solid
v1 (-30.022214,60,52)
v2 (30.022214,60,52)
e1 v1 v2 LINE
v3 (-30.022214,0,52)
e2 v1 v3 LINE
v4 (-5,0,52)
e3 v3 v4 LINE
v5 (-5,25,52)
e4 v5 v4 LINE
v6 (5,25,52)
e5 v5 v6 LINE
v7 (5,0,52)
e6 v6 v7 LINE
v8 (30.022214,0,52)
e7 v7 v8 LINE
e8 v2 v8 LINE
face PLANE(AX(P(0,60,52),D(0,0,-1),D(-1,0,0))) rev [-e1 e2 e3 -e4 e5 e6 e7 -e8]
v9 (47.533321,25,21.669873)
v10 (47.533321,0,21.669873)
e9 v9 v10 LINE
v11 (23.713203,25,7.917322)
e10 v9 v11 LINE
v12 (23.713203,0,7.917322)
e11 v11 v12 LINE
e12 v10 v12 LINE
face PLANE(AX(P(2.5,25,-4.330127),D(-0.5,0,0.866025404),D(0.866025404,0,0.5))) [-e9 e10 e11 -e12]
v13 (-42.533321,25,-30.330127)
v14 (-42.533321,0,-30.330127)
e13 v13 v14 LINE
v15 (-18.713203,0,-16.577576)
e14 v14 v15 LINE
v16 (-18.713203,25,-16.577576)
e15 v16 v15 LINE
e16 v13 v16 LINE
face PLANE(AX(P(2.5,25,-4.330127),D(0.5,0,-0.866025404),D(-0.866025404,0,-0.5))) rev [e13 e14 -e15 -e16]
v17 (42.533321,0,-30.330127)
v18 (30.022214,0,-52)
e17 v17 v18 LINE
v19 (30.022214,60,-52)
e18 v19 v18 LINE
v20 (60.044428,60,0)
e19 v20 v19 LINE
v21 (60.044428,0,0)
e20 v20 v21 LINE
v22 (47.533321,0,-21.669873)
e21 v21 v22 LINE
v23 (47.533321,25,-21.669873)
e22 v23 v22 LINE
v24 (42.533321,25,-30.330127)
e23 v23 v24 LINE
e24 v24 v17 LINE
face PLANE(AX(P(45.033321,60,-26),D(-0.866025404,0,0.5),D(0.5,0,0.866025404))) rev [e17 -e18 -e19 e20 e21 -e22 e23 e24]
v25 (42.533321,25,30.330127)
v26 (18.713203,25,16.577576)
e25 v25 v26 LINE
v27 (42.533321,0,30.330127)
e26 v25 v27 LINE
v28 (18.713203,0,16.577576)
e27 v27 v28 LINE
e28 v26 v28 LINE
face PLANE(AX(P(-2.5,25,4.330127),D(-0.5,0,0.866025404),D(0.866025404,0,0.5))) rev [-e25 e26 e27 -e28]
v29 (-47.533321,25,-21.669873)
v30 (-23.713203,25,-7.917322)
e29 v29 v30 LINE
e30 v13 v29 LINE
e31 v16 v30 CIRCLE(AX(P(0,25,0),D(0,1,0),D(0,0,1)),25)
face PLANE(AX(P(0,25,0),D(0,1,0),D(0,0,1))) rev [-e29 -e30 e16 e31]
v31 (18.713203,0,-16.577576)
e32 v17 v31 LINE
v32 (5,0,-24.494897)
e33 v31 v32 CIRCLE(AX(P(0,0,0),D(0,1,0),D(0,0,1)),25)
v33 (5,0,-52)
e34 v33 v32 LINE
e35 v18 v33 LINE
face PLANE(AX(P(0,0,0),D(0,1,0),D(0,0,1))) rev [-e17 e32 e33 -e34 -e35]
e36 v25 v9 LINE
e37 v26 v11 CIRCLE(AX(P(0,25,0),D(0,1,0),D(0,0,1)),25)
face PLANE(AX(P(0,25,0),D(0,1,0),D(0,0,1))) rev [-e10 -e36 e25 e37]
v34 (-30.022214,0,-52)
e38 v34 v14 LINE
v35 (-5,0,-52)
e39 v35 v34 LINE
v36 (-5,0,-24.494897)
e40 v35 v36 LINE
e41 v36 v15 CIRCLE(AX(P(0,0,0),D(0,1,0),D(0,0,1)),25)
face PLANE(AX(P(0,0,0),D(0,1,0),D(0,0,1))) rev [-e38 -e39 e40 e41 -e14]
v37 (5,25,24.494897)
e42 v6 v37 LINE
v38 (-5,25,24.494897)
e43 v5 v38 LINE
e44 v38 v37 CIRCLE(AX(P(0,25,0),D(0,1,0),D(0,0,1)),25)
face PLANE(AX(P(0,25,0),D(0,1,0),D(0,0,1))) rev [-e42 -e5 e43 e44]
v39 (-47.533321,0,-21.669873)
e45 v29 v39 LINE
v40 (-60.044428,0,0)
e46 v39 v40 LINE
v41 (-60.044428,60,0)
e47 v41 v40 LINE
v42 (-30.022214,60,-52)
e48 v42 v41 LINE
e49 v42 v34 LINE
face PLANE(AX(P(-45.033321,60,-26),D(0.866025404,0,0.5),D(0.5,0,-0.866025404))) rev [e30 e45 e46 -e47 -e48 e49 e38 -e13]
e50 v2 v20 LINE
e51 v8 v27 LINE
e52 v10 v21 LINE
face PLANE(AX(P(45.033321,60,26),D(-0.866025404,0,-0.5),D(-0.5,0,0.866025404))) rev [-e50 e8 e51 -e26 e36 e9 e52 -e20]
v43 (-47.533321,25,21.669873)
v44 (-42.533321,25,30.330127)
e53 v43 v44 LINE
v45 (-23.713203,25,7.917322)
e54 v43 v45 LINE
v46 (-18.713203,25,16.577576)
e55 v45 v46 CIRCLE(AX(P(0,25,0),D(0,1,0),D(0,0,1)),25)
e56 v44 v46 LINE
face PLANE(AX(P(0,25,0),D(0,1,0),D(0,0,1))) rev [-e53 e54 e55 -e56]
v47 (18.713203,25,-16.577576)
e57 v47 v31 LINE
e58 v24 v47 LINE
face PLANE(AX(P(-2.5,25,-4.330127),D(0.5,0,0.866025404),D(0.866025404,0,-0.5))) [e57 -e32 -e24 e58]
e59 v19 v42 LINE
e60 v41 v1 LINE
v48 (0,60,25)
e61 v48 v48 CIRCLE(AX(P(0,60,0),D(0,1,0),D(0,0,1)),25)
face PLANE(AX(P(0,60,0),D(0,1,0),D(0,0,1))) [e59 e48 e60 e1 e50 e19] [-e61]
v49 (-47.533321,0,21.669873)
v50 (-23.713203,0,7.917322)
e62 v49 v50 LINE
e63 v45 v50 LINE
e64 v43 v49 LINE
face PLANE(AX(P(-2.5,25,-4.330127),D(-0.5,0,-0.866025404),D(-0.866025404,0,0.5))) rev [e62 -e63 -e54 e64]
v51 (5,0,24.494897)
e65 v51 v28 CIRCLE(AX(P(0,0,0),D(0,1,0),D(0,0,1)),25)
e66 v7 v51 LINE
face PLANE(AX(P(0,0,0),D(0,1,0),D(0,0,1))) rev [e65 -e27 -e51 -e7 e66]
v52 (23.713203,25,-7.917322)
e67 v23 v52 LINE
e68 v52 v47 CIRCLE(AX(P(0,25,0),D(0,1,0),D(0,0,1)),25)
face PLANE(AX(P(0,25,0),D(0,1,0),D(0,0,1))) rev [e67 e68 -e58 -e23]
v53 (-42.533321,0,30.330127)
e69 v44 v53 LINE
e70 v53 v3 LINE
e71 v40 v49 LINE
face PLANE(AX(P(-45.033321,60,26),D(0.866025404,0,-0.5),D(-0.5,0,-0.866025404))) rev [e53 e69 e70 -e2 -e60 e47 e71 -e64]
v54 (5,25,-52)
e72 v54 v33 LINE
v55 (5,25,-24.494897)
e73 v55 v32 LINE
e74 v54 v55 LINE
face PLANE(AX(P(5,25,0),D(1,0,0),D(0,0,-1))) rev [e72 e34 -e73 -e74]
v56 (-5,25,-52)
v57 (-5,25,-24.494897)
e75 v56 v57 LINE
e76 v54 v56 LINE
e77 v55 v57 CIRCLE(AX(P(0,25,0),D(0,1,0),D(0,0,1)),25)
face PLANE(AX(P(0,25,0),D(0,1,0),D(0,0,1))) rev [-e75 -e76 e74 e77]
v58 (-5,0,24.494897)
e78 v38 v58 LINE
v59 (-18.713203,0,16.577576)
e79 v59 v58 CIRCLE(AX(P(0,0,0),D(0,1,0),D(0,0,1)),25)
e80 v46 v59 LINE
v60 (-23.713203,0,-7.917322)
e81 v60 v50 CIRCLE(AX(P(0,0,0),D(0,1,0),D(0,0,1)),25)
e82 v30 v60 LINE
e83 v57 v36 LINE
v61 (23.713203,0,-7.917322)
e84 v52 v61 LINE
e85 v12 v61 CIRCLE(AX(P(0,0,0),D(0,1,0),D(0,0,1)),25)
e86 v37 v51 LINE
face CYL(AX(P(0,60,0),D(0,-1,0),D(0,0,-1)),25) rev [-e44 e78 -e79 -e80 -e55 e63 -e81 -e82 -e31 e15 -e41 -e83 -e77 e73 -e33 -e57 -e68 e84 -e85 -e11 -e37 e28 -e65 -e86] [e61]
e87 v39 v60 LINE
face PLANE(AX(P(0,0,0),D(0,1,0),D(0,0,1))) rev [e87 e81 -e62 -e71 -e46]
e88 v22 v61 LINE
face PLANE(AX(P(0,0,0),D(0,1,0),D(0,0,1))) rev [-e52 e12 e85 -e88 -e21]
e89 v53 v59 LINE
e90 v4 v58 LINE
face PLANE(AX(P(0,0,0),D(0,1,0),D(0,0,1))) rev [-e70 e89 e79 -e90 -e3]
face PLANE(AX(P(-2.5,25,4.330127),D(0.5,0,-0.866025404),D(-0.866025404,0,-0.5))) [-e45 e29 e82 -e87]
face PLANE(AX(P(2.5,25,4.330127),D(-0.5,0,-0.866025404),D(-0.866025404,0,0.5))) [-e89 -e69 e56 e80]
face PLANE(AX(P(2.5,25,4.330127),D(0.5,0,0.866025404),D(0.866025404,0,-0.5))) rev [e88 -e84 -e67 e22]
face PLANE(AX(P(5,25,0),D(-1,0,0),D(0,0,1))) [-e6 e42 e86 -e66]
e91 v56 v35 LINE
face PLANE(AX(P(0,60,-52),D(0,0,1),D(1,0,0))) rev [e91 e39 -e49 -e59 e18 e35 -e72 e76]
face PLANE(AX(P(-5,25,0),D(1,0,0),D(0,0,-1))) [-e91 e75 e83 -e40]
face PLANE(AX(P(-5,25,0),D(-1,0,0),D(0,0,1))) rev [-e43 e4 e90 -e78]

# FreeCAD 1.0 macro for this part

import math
import FreeCAD as App
import Part
import Sketcher

V = App.Vector
Q = App.Units.Quantity


def add_polygon(sketch, points):
    """Adds a closed chain of lines whose ends are joined by coincident constraints."""
    first, n = sketch.GeometryCount, len(points)
    for a, b in zip(points, points[1:] + points[:1]):
        sketch.addGeometry(Part.LineSegment(App.Vector(*a, 0), App.Vector(*b, 0)), False)
    for i in range(n):
        sketch.addConstraint(Sketcher.Constraint("Coincident", first + i, 2, first + (i + 1) % n, 1))

doc = App.newDocument("Part")
body = doc.addObject("PartDesign::Body", "Body")

sketch1 = body.newObject("Sketcher::SketchObject", "Sketch")
sketch1.AttachmentSupport = (doc.getObject("XZ_Plane"), [""])
sketch1.MapMode = "FlatFace"
add_polygon(sketch1, [(-47.533321, 21.669873), (-42.533321, 30.330127), (-30.022214, 52), (30.022214, 52), (42.533321, 30.330127), (47.533321, 21.669873), (60.044428, 0), (47.533321, -21.669873), (42.533321, -30.330127), (30.022214, -52), (-30.022214, -52), (-42.533321, -30.330127), (-47.533321, -21.669873), (-60.044428, 0)])
sketch1.addGeometry(Part.ArcOfCircle(Part.Circle(V(0, 0, 0), V(0, 0, 1), 25), math.radians(-161.536959), math.radians(-138.463041)), False)
sketch1.addGeometry(Part.ArcOfCircle(Part.Circle(V(0, 0, 0), V(0, 0, 1), 25), math.radians(-138.463041), math.radians(-101.536959)), False)
sketch1.addGeometry(Part.ArcOfCircle(Part.Circle(V(0, 0, 0), V(0, 0, 1), 25), math.radians(-101.536959), math.radians(-78.463041)), False)
sketch1.addGeometry(Part.ArcOfCircle(Part.Circle(V(0, 0, 0), V(0, 0, 1), 25), math.radians(-78.463041), math.radians(-41.536959)), False)
sketch1.addGeometry(Part.ArcOfCircle(Part.Circle(V(0, 0, 0), V(0, 0, 1), 25), math.radians(-41.536959), math.radians(-18.463041)), False)
sketch1.addGeometry(Part.ArcOfCircle(Part.Circle(V(0, 0, 0), V(0, 0, 1), 25), math.radians(-18.463041), math.radians(0)), False)
sketch1.addGeometry(Part.ArcOfCircle(Part.Circle(V(0, 0, 0), V(0, 0, 1), 25), math.radians(0), math.radians(18.463041)), False)
sketch1.addGeometry(Part.ArcOfCircle(Part.Circle(V(0, 0, 0), V(0, 0, 1), 25), math.radians(18.463041), math.radians(41.536959)), False)
sketch1.addGeometry(Part.ArcOfCircle(Part.Circle(V(0, 0, 0), V(0, 0, 1), 25), math.radians(41.536959), math.radians(78.463041)), False)
sketch1.addGeometry(Part.ArcOfCircle(Part.Circle(V(0, 0, 0), V(0, 0, 1), 25), math.radians(78.463041), math.radians(101.536959)), False)
sketch1.addGeometry(Part.ArcOfCircle(Part.Circle(V(0, 0, 0), V(0, 0, 1), 25), math.radians(101.536959), math.radians(138.463041)), False)
sketch1.addGeometry(Part.ArcOfCircle(Part.Circle(V(0, 0, 0), V(0, 0, 1), 25), math.radians(138.463041), math.radians(161.536959)), False)
sketch1.addGeometry(Part.ArcOfCircle(Part.Circle(V(0, 0, 0), V(0, 0, 1), 25), math.radians(161.536959), math.radians(198.463041)), False)
sketch1.addConstraint([
    Sketcher.Constraint("Tangent", 14, 2, 15, 1),
    Sketcher.Constraint("Tangent", 15, 2, 16, 1),
    Sketcher.Constraint("Tangent", 16, 2, 17, 1),
    Sketcher.Constraint("Tangent", 17, 2, 18, 1),
    Sketcher.Constraint("Tangent", 18, 2, 19, 1),
    Sketcher.Constraint("Tangent", 19, 2, 20, 1),
    Sketcher.Constraint("Tangent", 20, 2, 21, 1),
    Sketcher.Constraint("Tangent", 21, 2, 22, 1),
    Sketcher.Constraint("Tangent", 22, 2, 23, 1),
    Sketcher.Constraint("Tangent", 23, 2, 24, 1),
    Sketcher.Constraint("Tangent", 24, 2, 25, 1),
    Sketcher.Constraint("Tangent", 25, 2, 26, 1),
    Sketcher.Constraint("Tangent", 26, 2, 14, 1),
    Sketcher.Constraint("Horizontal", 2),
    Sketcher.Constraint("Horizontal", 9),
    Sketcher.Constraint("Coincident", 14, 3, -1, 1),
    Sketcher.Constraint("Coincident", 16, 3, -1, 1),
    Sketcher.Constraint("Coincident", 18, 3, -1, 1),
    Sketcher.Constraint("Coincident", 20, 3, -1, 1),
    Sketcher.Constraint("Coincident", 22, 3, -1, 1),
    Sketcher.Constraint("Coincident", 24, 3, -1, 1),
    Sketcher.Constraint("Symmetric", 0, 2, 7, 2, -1, 1),
    Sketcher.Constraint("Symmetric", 1, 2, 8, 2, -1, 1),
    Sketcher.Constraint("Symmetric", 3, 2, 10, 2, -1, 1),
    Sketcher.Constraint("Symmetric", 4, 2, 11, 2, -1, 1),
    Sketcher.Constraint("Symmetric", 5, 2, 12, 2, -1, 1),
    Sketcher.Constraint("Symmetric", 6, 2, 13, 2, -1, 1),
    Sketcher.Constraint("Symmetric", 0, 2, 3, 2, -2),
    Sketcher.Constraint("Symmetric", 6, 2, 11, 2, -2),
    Sketcher.Constraint("PointOnObject", 5, 2, -1),
    Sketcher.Constraint("PointOnObject", 19, 2, -1),
    Sketcher.Constraint("Parallel", 0, 1),
    Sketcher.Constraint("Parallel", 3, 4),
    Sketcher.Constraint("Parallel", 4, 5),
    Sketcher.Constraint("Parallel", 5, 10),
    Sketcher.Constraint("Horizontal", 15, 2, 16, 2),
    Sketcher.Constraint("Horizontal", 14, 2, 17, 2),
    Sketcher.Constraint("Horizontal", 22, 2, 23, 2),
    Sketcher.Constraint("Horizontal", 21, 2, 24, 2),
    Sketcher.Constraint("Horizontal", 20, 2, 25, 2),
    Sketcher.Constraint("Horizontal", 18, 2, 26, 2),
    Sketcher.Constraint("Vertical", 18, 2, 20, 2),
    Sketcher.Constraint("Vertical", 17, 2, 21, 2),
    Sketcher.Constraint("Vertical", 16, 2, 22, 2),
    Sketcher.Constraint("Equal", 3, 5),
    Sketcher.Constraint("Radius", 14, Q("25 mm")),
    Sketcher.Constraint("Angle", 0, Q("60 deg")),
    Sketcher.Constraint("Distance", 0, Q("10 mm")),
    Sketcher.Constraint("DistanceY", -1, 1, 1, 2, Q("52 mm")),
    Sketcher.Constraint("DistanceX", 15, 2, -1, 1, Q("5 mm")),
    Sketcher.Constraint("DistanceX", 17, 2, 18, 2, Q("5 mm")),
    Sketcher.Constraint("DistanceX", 2, 1, 2, 2, Q("60.044428 mm")),
    Sketcher.Constraint("DistanceY", 18, 2, -1, 1, Q("7.917322 mm")),
])
pad1 = body.newObject("PartDesign::Pad", "Pad")
pad1.Profile = sketch1
pad1.Length = 60
pad1.Reversed = True

sketch2 = body.newObject("Sketcher::SketchObject", "Sketch001")
sketch2.AttachmentSupport = (doc.getObject("XZ_Plane"), [""])
sketch2.MapMode = "FlatFace"
sketch2.addGeometry([
    Part.LineSegment(V(-47.533321, -21.669873, 0), V(-23.713203, -7.917322, 0)),
    Part.ArcOfCircle(Part.Circle(V(0, 0, 0), V(0, 0, 1), 25), math.radians(-161.536959), math.radians(-138.463041)),
    Part.LineSegment(V(-18.713203, -16.577576, 0), V(-42.533321, -30.330127, 0)),
    Part.LineSegment(V(-42.533321, -30.330127, 0), V(-47.533321, -21.669873, 0)),
    Part.LineSegment(V(-47.533321, 21.669873, 0), V(-42.533321, 30.330127, 0)),
    Part.LineSegment(V(-42.533321, 30.330127, 0), V(-18.713203, 16.577576, 0)),
    Part.ArcOfCircle(Part.Circle(V(0, 0, 0), V(0, 0, 1), 25), math.radians(138.463041), math.radians(161.536959)),
    Part.LineSegment(V(-23.713203, 7.917322, 0), V(-47.533321, 21.669873, 0)),
    Part.LineSegment(V(-5, 52, 0), V(5, 52, 0)),
    Part.LineSegment(V(5, 52, 0), V(5, 24.494897, 0)),
    Part.ArcOfCircle(Part.Circle(V(0, 0, 0), V(0, 0, 1), 25), math.radians(78.463041), math.radians(101.536959)),
    Part.LineSegment(V(-5, 24.494897, 0), V(-5, 52, 0)),
    Part.LineSegment(V(18.713203, 16.577576, 0), V(42.533321, 30.330127, 0)),
    Part.LineSegment(V(42.533321, 30.330127, 0), V(47.533321, 21.669873, 0)),
    Part.LineSegment(V(47.533321, 21.669873, 0), V(23.713203, 7.917322, 0)),
    Part.ArcOfCircle(Part.Circle(V(0, 0, 0), V(0, 0, 1), 25), math.radians(18.463041), math.radians(41.536959)),
    Part.LineSegment(V(23.713203, -7.917322, 0), V(47.533321, -21.669873, 0)),
    Part.LineSegment(V(47.533321, -21.669873, 0), V(42.533321, -30.330127, 0)),
    Part.LineSegment(V(42.533321, -30.330127, 0), V(18.713203, -16.577576, 0)),
    Part.ArcOfCircle(Part.Circle(V(0, 0, 0), V(0, 0, 1), 25), math.radians(-41.536959), math.radians(-18.463041)),
    Part.LineSegment(V(5, -24.494897, 0), V(5, -52, 0)),
    Part.LineSegment(V(5, -52, 0), V(-5, -52, 0)),
    Part.LineSegment(V(-5, -52, 0), V(-5, -24.494897, 0)),
    Part.ArcOfCircle(Part.Circle(V(0, 0, 0), V(0, 0, 1), 25), math.radians(-101.536959), math.radians(-78.463041)),
], False)
sketch2.addConstraint([
    Sketcher.Constraint("Coincident", 0, 2, 1, 1),
    Sketcher.Constraint("Coincident", 1, 2, 2, 1),
    Sketcher.Constraint("Coincident", 2, 2, 3, 1),
    Sketcher.Constraint("Coincident", 3, 2, 0, 1),
    Sketcher.Constraint("Coincident", 4, 2, 5, 1),
    Sketcher.Constraint("Coincident", 5, 2, 6, 1),
    Sketcher.Constraint("Coincident", 6, 2, 7, 1),
    Sketcher.Constraint("Coincident", 7, 2, 4, 1),
    Sketcher.Constraint("Coincident", 8, 2, 9, 1),
    Sketcher.Constraint("Coincident", 9, 2, 10, 1),
    Sketcher.Constraint("Coincident", 10, 2, 11, 1),
    Sketcher.Constraint("Coincident", 11, 2, 8, 1),
    Sketcher.Constraint("Coincident", 12, 2, 13, 1),
    Sketcher.Constraint("Coincident", 13, 2, 14, 1),
    Sketcher.Constraint("Coincident", 14, 2, 15, 1),
    Sketcher.Constraint("Coincident", 15, 2, 12, 1),
    Sketcher.Constraint("Coincident", 16, 2, 17, 1),
    Sketcher.Constraint("Coincident", 17, 2, 18, 1),
    Sketcher.Constraint("Coincident", 18, 2, 19, 1),
    Sketcher.Constraint("Coincident", 19, 2, 16, 1),
    Sketcher.Constraint("Coincident", 20, 2, 21, 1),
    Sketcher.Constraint("Coincident", 21, 2, 22, 1),
    Sketcher.Constraint("Coincident", 22, 2, 23, 1),
    Sketcher.Constraint("Coincident", 23, 2, 20, 1),
    Sketcher.Constraint("Horizontal", 8),
    Sketcher.Constraint("Vertical", 9),
    Sketcher.Constraint("Vertical", 11),
    Sketcher.Constraint("Vertical", 20),
    Sketcher.Constraint("Horizontal", 21),
    Sketcher.Constraint("Vertical", 22),
    Sketcher.Constraint("Coincident", 1, 3, -1, 1),
    Sketcher.Constraint("Coincident", 6, 3, -1, 1),
    Sketcher.Constraint("Coincident", 10, 3, -1, 1),
    Sketcher.Constraint("Coincident", 15, 3, -1, 1),
    Sketcher.Constraint("Coincident", 19, 3, -1, 1),
    Sketcher.Constraint("Coincident", 23, 3, -1, 1),
    Sketcher.Constraint("Equal", 1, 6),
    Sketcher.Constraint("Equal", 6, 10),
    Sketcher.Constraint("Equal", 10, 15),
    Sketcher.Constraint("Equal", 15, 19),
    Sketcher.Constraint("Equal", 19, 23),
    Sketcher.Constraint("Symmetric", 2, 2, 12, 2, -1, 1),
    Sketcher.Constraint("Symmetric", 3, 2, 13, 2, -1, 1),
    Sketcher.Constraint("Symmetric", 7, 2, 16, 2, -1, 1),
    Sketcher.Constraint("Symmetric", 4, 2, 17, 2, -1, 1),
    Sketcher.Constraint("Symmetric", 11, 2, 20, 2, -1, 1),
    Sketcher.Constraint("Symmetric", 4, 2, 12, 2, -2),
    Sketcher.Constraint("Symmetric", 7, 2, 13, 2, -2),
    Sketcher.Constraint("Parallel", 0, 2),
    Sketcher.Constraint("Perpendicular", 2, 3),
    Sketcher.Constraint("Perpendicular", 4, 5),
    Sketcher.Constraint("Parallel", 5, 7),
    Sketcher.Constraint("Perpendicular", 3, 12),
    Sketcher.Constraint("Perpendicular", 13, 14),
    Sketcher.Constraint("Parallel", 7, 16),
    Sketcher.Constraint("Perpendicular", 17, 18),
    Sketcher.Constraint("Horizontal", 9, 2, 10, 2),
    Sketcher.Constraint("Horizontal", 22, 2, 23, 2),
    Sketcher.Constraint("Equal", 0, 2),
    Sketcher.Constraint("Radius", 1, Q("25 mm")),
    Sketcher.Constraint("DistanceX", 8, 1, 8, 2, Q("10 mm")),
    Sketcher.Constraint("Angle", 0, Q("30 deg")),
    Sketcher.Constraint("Distance", 3, Q("10 mm")),
    Sketcher.Constraint("DistanceY", -1, 1, 8, 2, Q("52 mm")),
    Sketcher.Constraint("DistanceY", 3, 2, 4, 2, Q("52 mm")),
])
pocket1 = body.newObject("PartDesign::Pocket", "Pocket")
pocket1.Profile = sketch2
pocket1.Length = 25

doc.recompute()
